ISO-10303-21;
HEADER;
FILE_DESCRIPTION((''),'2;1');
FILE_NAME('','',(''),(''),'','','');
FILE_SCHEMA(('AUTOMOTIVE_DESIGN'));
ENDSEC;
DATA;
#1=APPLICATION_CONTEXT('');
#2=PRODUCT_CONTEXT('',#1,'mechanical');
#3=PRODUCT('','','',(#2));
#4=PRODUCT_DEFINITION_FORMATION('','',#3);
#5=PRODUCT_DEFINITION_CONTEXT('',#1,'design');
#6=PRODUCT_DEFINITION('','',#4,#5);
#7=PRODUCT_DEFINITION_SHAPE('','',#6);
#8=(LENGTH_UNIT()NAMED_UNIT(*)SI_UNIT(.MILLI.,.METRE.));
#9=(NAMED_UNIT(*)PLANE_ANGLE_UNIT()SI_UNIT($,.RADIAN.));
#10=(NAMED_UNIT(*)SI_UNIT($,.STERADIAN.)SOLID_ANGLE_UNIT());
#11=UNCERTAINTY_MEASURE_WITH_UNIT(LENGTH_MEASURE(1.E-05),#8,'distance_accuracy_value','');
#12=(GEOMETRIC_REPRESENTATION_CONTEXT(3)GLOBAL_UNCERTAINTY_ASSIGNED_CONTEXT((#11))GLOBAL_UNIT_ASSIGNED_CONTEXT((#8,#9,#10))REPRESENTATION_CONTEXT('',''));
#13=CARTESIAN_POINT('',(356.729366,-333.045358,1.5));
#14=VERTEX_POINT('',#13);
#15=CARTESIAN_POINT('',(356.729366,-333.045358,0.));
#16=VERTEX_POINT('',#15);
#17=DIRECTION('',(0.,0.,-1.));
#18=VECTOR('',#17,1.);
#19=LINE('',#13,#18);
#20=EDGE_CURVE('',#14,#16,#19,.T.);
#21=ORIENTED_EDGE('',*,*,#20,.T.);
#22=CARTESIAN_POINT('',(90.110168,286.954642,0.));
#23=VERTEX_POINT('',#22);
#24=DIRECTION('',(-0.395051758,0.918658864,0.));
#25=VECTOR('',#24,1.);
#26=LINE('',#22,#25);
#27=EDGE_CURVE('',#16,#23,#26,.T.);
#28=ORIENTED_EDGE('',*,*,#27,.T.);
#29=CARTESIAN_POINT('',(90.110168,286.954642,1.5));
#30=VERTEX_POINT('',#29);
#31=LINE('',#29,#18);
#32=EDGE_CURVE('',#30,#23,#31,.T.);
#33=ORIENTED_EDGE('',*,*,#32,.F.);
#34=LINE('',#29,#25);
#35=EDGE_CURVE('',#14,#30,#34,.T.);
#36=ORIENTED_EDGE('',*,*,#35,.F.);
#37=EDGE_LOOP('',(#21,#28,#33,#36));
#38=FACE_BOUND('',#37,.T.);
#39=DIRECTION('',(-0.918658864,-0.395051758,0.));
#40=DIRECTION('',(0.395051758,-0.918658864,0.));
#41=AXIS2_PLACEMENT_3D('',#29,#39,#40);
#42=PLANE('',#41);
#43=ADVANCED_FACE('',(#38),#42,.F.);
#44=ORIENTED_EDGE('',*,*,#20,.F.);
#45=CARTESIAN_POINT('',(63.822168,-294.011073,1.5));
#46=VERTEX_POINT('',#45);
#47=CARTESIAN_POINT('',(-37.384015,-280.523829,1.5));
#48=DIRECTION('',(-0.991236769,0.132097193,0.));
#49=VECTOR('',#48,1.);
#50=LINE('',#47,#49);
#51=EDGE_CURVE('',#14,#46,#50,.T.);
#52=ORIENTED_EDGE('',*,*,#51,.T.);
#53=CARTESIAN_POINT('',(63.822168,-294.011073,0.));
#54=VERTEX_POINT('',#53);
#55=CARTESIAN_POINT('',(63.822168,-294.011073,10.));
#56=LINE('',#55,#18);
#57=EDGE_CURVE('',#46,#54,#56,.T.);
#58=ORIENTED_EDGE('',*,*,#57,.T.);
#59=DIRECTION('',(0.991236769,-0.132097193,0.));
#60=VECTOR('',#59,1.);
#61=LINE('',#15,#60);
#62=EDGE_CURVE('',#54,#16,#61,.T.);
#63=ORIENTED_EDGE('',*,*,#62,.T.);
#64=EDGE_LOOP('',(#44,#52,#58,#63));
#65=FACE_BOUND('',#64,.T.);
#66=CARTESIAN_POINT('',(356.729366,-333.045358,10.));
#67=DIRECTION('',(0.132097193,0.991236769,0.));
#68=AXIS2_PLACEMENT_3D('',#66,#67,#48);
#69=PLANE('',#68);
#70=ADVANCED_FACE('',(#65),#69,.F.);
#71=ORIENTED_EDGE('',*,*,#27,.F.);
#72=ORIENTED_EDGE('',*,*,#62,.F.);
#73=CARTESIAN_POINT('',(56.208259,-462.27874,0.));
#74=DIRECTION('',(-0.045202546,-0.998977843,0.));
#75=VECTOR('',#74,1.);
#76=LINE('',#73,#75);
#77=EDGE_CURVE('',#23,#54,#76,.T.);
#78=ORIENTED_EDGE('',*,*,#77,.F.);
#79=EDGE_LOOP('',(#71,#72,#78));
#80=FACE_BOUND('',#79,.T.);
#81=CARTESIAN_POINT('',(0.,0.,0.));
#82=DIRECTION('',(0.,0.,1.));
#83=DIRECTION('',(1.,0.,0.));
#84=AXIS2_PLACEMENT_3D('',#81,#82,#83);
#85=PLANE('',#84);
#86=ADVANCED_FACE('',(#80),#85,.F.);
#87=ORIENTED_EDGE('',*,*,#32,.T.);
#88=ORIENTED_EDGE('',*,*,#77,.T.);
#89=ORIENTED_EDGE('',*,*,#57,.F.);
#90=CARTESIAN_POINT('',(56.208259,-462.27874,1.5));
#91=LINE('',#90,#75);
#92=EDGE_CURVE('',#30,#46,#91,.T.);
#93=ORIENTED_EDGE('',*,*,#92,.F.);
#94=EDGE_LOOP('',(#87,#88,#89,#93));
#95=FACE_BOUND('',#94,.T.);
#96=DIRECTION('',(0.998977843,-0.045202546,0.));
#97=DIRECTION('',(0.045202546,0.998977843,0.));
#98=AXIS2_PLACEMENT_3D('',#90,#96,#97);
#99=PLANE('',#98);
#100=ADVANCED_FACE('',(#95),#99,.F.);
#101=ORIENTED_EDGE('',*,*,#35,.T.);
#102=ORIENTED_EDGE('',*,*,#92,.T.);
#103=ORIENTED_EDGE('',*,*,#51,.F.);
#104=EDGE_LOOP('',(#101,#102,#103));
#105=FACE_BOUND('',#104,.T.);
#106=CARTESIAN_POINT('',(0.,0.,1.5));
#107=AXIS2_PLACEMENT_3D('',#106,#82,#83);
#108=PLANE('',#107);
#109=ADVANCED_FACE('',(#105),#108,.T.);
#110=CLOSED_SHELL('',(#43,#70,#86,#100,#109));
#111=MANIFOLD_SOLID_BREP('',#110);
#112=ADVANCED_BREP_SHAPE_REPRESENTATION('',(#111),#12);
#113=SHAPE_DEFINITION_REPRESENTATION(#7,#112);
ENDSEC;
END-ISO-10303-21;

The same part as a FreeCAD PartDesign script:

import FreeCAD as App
import Part
import Sketcher

V = App.Vector
Q = App.Units.Quantity

doc = App.newDocument("Part")
params = doc.addObject("Spreadsheet::Sheet", "Params")
for row, (alias, value) in enumerate([
    ("sketch1_length", "750 mm"),
    ("pad1_length", "1.5 mm"),
    ("pocket1_length", "10 mm"),
], start=1):
    params.set(f"A{row}", alias)
    params.set(f"B{row}", "=" + value)
    params.setAlias(f"B{row}", alias)

body = doc.addObject("PartDesign::Body", "Body")

# Sketch on XY plane
sketch1 = body.newObject("Sketcher::SketchObject", "Sketch")
sketch1.AttachmentSupport = (doc.getObject("XY_Plane"), [""])
sketch1.MapMode = "FlatFace"
sketch1.addGeometry([
    Part.LineSegment(V(357, -333, 0), V(90, 287, 0)),
    Part.LineSegment(V(90, 287, 0), V(56, -462, 0)),
    Part.LineSegment(V(56, -462, 0), V(357, -333, 0)),
], False)
sketch1.addConstraint([
    Sketcher.Constraint("Coincident", 0, 2, 1, 1),
    Sketcher.Constraint("Coincident", 1, 2, 2, 1),
    Sketcher.Constraint("Coincident", 2, 2, 0, 1),
    Sketcher.Constraint("Perpendicular", 0, 2),
    Sketcher.Constraint("Distance", 1, Q("750 mm")),
    Sketcher.Constraint("DistanceY", 2, 2, 0, 2, Q("620 mm")),
    Sketcher.Constraint("DistanceX", 0, 2, 2, 2, Q("266.619198 mm")),
    Sketcher.Constraint("DistanceX", -1, 1, 0, 2, Q("90.110168 mm")),
    Sketcher.Constraint("DistanceY", -1, 1, 0, 2, Q("286.954642 mm")),
])
sketch1.setExpression("Constraints[4]", "Params.sketch1_length")
pad1 = body.newObject("PartDesign::Pad", "Pad")
pad1.Profile = sketch1
pad1.setExpression("Length", "Params.pad1_length")

# Sketch on XY plane
sketch2 = body.newObject("Sketcher::SketchObject", "Sketch001")
sketch2.AttachmentSupport = (doc.getObject("XY_Plane"), [""])
sketch2.MapMode = "FlatFace"
sketch2.addGeometry([
    Part.LineSegment(V(64, -294, 0), V(357, -333, 0)),
    Part.LineSegment(V(357, -333, 0), V(56, -462, 0)),
    Part.LineSegment(V(56, -462, 0), V(64, -294, 0)),
], False)
sketch2.addConstraint([
    Sketcher.Constraint("Coincident", 0, 2, 1, 1),
    Sketcher.Constraint("Coincident", 1, 2, 2, 1),
    Sketcher.Constraint("Coincident", 2, 2, 0, 1),
    Sketcher.Constraint("DistanceX", 2, 2, 0, 2, Q("292.907198 mm")),
    Sketcher.Constraint("Distance", 2, Q("168.439839 mm")),
    Sketcher.Constraint("DistanceY", 0, 2, -1, 1, Q("333.045358 mm")),
    Sketcher.Constraint("DistanceX", -1, 1, 1, 2, Q("56.208259 mm")),
    Sketcher.Constraint("DistanceY", 1, 2, -1, 1, Q("462.27874 mm")),
    Sketcher.Constraint("DistanceX", -1, 1, 2, 2, Q("63.822168 mm")),
])
pocket1 = body.newObject("PartDesign::Pocket", "Pocket")
pocket1.Profile = sketch2
pocket1.setExpression("Length", "Params.pocket1_length")
pocket1.Reversed = True

doc.recompute()
